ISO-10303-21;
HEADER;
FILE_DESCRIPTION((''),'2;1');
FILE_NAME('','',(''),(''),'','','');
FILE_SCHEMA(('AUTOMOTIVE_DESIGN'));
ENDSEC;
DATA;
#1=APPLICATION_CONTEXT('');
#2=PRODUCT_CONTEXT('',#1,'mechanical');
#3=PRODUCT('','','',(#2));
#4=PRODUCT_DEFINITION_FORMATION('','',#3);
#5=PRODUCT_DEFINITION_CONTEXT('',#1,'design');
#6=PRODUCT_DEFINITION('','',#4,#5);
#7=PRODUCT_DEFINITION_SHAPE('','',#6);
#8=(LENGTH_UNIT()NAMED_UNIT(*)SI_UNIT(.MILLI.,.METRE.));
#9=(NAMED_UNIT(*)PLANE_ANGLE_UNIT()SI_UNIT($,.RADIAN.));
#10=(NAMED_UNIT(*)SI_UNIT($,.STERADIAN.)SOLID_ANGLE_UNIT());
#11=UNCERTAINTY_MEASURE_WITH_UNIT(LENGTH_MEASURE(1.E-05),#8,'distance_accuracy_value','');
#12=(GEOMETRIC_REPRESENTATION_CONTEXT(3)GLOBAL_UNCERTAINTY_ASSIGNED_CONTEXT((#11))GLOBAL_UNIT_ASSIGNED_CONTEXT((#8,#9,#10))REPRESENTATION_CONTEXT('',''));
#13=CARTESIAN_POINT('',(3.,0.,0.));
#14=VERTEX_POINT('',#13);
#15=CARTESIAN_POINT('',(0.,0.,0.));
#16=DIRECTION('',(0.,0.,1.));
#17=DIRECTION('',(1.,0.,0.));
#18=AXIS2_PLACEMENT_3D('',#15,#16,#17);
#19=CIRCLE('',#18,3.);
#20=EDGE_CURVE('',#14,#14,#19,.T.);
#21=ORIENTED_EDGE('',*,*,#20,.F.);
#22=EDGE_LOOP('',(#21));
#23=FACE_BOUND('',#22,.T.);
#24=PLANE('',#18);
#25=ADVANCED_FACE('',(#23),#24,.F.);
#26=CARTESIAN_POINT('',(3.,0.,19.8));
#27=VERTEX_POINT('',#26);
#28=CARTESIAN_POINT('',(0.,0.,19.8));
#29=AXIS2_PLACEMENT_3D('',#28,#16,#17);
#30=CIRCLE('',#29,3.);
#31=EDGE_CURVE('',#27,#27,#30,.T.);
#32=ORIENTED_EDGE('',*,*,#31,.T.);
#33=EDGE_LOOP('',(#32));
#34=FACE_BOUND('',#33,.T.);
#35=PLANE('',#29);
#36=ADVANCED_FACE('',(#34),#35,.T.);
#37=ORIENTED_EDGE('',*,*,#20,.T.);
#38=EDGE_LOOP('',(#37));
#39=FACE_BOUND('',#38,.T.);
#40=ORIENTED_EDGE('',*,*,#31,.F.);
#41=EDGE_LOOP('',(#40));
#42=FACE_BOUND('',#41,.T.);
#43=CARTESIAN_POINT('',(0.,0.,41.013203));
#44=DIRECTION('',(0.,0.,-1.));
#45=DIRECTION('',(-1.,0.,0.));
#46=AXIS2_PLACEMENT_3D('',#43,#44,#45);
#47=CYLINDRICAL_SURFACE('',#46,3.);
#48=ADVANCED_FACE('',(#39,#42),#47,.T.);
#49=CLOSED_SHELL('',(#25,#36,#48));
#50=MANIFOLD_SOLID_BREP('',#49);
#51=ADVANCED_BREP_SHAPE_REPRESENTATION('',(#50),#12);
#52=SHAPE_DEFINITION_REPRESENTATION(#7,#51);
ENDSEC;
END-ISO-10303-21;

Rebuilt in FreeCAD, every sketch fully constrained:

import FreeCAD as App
import Part
import Sketcher
from FreeCAD import Vector

doc = App.newDocument("Part")
body = doc.addObject("PartDesign::Body", "Body")

# Sketch on XY plane
sketch1 = body.newObject("Sketcher::SketchObject", "Sketch")
sketch1.AttachmentSupport = (doc.getObject("XY_Plane"), [""])
sketch1.MapMode = "FlatFace"
sketch1.addGeometry(Part.Circle(Vector(0, 0, 0), Vector(0, 0, 1), 7.5), False)
sketch1.addConstraint(Sketcher.Constraint("Coincident", 0, 3, -1, 1))
sketch1.addConstraint(Sketcher.Constraint("Diameter", 0, 15.0))
pad1 = body.newObject("PartDesign::Pad", "Pad")
pad1.Profile = sketch1
pad1.Length = 19.8

# Sketch on XY plane
sketch2 = body.newObject("Sketcher::SketchObject", "Sketch001")
sketch2.AttachmentSupport = (doc.getObject("XY_Plane"), [""])
sketch2.MapMode = "FlatFace"
sketch2.AttachmentOffset = App.Placement(Vector(0, 0, 3.9), App.Rotation())
sketch2.addGeometry(Part.Circle(Vector(0, 0, 0), Vector(0, 0, 1), 7.5), False)
sketch2.addGeometry(Part.Circle(Vector(0, 0, 0), Vector(0, 0, 1), 3), False)
sketch2.addConstraint(Sketcher.Constraint("Coincident", 0, 3, -1, 1))
sketch2.addConstraint(Sketcher.Constraint("Coincident", 1, 3, -1, 1))
sketch2.addConstraint(Sketcher.Constraint("Diameter", 0, 15.0))
sketch2.addConstraint(Sketcher.Constraint("Diameter", 1, 6.0))
pocket1 = body.newObject("PartDesign::Pocket", "Pocket")
pocket1.Profile = sketch2
pocket1.Length = 12
pocket1.Reversed = True

# Sketch on XY plane
sketch3 = body.newObject("Sketcher::SketchObject", "Sketch002")
sketch3.AttachmentSupport = (doc.getObject("XY_Plane"), [""])
sketch3.MapMode = "FlatFace"
sketch3.addGeometry(Part.Circle(Vector(0, 0, 0), Vector(0, 0, 1), 7.5), False)
sketch3.addGeometry(Part.Circle(Vector(0, 0, 0), Vector(0, 0, 1), 3), False)
sketch3.addConstraint(Sketcher.Constraint("Coincident", 0, 3, -1, 1))
sketch3.addConstraint(Sketcher.Constraint("Coincident", 1, 3, -1, 1))
sketch3.addConstraint(Sketcher.Constraint("Diameter", 0, 15.0))
sketch3.addConstraint(Sketcher.Constraint("Diameter", 1, 6.0))
pocket2 = body.newObject("PartDesign::Pocket", "Pocket001")
pocket2.Profile = sketch3
pocket2.Type = "ThroughAll"
pocket2.Reversed = True

doc.recompute()
